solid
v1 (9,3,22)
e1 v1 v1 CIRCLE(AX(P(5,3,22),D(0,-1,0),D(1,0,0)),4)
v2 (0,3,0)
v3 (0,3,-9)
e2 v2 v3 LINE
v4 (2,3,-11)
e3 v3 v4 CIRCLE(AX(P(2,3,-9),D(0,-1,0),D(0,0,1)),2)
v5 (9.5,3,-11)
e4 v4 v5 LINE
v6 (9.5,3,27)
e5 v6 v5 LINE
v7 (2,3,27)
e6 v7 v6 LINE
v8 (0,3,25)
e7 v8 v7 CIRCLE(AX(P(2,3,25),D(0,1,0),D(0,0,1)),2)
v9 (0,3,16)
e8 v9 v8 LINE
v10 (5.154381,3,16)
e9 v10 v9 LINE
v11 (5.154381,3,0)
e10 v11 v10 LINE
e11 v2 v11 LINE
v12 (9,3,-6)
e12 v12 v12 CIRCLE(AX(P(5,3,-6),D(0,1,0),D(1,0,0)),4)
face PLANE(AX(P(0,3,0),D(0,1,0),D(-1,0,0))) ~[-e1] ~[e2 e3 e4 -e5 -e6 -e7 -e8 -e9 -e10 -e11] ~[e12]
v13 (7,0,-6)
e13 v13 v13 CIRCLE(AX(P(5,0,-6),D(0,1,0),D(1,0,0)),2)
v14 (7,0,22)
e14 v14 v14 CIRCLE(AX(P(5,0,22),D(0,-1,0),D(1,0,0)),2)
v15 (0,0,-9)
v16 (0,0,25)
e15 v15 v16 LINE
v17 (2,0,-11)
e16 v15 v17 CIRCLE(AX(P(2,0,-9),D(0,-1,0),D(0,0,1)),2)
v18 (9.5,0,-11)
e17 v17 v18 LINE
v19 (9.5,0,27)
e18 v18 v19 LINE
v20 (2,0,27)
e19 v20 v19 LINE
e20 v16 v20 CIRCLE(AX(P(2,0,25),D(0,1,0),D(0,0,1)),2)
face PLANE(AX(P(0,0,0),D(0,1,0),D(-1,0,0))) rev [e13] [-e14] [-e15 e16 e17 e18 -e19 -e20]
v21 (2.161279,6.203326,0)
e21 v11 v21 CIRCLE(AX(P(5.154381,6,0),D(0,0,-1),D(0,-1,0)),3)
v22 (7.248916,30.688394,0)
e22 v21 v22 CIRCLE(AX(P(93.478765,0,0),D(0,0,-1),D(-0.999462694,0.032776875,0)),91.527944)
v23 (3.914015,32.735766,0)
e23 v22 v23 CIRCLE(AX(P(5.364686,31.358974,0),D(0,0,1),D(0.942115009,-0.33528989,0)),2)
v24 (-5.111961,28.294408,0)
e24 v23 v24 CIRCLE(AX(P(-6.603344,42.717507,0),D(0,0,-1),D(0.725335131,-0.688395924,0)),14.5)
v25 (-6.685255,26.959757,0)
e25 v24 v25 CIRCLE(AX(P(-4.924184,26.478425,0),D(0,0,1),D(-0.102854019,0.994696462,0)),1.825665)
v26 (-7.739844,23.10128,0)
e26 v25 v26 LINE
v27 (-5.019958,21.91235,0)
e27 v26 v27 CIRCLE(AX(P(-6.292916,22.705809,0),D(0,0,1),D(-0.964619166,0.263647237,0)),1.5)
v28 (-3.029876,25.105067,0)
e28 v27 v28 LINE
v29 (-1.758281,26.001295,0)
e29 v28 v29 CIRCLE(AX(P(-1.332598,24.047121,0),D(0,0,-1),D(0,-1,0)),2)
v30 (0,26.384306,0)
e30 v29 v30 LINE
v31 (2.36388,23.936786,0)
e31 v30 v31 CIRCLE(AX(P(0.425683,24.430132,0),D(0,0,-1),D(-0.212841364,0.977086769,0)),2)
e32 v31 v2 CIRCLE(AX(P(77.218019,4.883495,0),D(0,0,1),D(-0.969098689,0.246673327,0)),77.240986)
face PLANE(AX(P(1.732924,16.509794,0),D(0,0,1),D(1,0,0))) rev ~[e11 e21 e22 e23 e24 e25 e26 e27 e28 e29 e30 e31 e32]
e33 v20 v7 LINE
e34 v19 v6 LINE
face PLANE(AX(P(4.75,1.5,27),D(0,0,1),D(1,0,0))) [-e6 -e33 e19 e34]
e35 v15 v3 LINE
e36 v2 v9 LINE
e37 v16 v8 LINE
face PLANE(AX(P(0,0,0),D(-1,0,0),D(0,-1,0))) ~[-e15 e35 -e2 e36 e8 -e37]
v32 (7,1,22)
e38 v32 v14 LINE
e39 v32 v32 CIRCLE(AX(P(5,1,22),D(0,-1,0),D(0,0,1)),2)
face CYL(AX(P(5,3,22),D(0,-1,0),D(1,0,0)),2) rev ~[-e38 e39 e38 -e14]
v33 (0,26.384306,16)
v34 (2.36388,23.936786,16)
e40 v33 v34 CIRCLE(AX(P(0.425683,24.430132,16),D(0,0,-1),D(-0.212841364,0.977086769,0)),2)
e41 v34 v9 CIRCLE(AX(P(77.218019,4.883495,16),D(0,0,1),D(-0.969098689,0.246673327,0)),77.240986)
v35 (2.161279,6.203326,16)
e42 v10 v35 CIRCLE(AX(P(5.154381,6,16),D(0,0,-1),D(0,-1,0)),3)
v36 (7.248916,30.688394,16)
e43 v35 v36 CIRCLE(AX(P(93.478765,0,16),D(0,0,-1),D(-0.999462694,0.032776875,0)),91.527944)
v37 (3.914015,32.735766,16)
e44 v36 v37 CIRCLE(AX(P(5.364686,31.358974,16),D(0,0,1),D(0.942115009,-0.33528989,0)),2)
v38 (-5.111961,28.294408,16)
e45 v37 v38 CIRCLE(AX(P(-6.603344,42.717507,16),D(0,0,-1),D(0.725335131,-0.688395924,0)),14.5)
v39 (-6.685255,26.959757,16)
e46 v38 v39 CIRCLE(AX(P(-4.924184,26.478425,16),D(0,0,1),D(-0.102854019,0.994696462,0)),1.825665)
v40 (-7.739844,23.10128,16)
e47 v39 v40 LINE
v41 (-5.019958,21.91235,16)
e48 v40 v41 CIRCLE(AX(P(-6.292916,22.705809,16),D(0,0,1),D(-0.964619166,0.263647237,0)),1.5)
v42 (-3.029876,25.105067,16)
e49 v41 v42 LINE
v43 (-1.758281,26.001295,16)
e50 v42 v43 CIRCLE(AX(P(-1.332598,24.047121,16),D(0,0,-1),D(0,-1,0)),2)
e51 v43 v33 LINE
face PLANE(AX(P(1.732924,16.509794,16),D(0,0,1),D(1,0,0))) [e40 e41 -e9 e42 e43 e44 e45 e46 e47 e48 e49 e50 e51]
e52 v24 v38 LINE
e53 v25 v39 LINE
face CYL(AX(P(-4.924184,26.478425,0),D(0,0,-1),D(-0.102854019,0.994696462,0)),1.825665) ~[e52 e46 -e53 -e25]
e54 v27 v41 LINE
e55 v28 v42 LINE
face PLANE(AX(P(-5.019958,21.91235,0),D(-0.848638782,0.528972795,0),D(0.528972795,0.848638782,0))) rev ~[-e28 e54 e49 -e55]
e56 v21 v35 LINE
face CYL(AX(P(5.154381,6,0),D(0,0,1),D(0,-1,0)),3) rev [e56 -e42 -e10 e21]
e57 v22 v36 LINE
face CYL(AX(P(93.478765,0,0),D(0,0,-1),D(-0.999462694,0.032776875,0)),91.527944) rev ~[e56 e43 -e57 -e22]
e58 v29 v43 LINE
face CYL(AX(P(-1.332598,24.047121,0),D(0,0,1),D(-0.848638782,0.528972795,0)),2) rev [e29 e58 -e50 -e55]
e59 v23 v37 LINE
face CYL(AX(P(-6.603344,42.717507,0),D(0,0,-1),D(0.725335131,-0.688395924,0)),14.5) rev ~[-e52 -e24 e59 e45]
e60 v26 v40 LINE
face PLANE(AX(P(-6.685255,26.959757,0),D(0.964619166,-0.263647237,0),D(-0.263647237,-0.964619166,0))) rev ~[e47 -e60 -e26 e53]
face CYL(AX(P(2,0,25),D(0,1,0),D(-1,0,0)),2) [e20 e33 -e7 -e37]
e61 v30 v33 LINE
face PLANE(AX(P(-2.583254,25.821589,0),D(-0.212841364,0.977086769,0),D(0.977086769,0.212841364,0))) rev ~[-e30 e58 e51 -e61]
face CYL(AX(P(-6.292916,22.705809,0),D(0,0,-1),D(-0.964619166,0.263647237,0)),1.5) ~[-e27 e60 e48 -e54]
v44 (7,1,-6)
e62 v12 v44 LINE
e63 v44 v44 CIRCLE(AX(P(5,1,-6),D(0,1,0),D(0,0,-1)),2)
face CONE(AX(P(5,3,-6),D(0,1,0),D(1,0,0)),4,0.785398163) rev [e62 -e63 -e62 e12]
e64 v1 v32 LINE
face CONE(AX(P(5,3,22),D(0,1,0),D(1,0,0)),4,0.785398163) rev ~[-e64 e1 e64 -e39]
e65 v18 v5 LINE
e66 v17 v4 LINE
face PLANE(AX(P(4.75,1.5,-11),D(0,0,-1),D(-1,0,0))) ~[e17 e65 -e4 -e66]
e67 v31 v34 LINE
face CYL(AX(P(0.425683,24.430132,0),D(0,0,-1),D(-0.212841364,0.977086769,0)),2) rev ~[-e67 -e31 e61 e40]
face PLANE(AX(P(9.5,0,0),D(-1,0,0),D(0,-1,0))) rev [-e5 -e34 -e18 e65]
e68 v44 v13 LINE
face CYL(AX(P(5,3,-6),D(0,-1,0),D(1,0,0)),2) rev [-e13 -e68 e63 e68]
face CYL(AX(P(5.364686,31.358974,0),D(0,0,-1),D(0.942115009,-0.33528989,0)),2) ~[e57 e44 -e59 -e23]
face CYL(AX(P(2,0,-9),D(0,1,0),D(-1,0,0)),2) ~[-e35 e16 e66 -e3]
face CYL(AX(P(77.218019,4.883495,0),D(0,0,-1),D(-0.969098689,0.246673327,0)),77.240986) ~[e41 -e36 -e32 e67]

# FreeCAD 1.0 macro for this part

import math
import FreeCAD as App
import Part
import Sketcher
from FreeCAD import Vector
Q = App.Units.Quantity


def edges_at(feature, points):
    """Names of the edges that pass closest to the given points."""
    edges = feature.Shape.Edges
    near = lambda p: min(range(len(edges)), key=lambda i: edges[i].distToShape(Part.Vertex(*p))[0])
    return sorted({f"Edge{near(p) + 1}" for p in points})


def add_polygon(sketch, points):
    """Adds a closed chain of lines whose ends are joined by coincident constraints."""
    first, n = sketch.GeometryCount, len(points)
    for a, b in zip(points, points[1:] + points[:1]):
        sketch.addGeometry(Part.LineSegment(App.Vector(*a, 0), App.Vector(*b, 0)), False)
    for i in range(n):
        sketch.addConstraint(Sketcher.Constraint("Coincident", first + i, 2, first + (i + 1) % n, 1))

doc = App.newDocument("Part")
body = doc.addObject("PartDesign::Body", "Body")

sketch1 = doc.addObject("Sketcher::SketchObject", "Sketch")
body.addObject(sketch1)
sketch1.AttachmentSupport = (doc.XY_Plane, [""])
sketch1.MapMode = "FlatFace"
sketch1.addGeometry([
    Part.ArcOfCircle(Part.Circle(Vector(93.5, 0, 0), Vector(0, 0, 1), 91.5), math.radians(160.41), math.radians(178.12)),
    Part.ArcOfCircle(Part.Circle(Vector(5.4, 31.4, 0), Vector(0, 0, 1), 2), math.radians(-20), math.radians(136)),
    Part.ArcOfCircle(Part.Circle(Vector(-6.6, 42.7, 0), Vector(0, 0, 1), 14.5), math.radians(-84), math.radians(-44)),
    Part.ArcOfCircle(Part.Circle(Vector(-4.9, 26.5, 0), Vector(0, 0, 1), 1.8), math.radians(96), math.radians(165)),
    Part.LineSegment(Vector(-6.7, 27, 0), Vector(-7.7, 23.1, 0)),
    Part.ArcOfCircle(Part.Circle(Vector(-6.3, 22.7, 0), Vector(0, 0, 1), 1.5), math.radians(165), math.radians(328)),
    Part.LineSegment(Vector(-5, 21.9, 0), Vector(-2.6, 25.8, 0)),
    Part.LineSegment(Vector(-2.6, 25.8, 0), Vector(0, 26.4, 0)),
    Part.ArcOfCircle(Part.Circle(Vector(0.4, 24.4, 0), Vector(0, 0, 1), 2), math.radians(-14), math.radians(102)),
    Part.ArcOfCircle(Part.Circle(Vector(77.2, 4.9, 0), Vector(0, 0, 1), 77.2), math.radians(165.72), math.radians(181.4)),
    Part.LineSegment(Vector(0, 3, 0), Vector(0, 0, 0)),
    Part.LineSegment(Vector(0, 0, 0), Vector(9.5, 0, 0)),
    Part.LineSegment(Vector(9.5, 0, 0), Vector(9.5, 3, 0)),
    Part.LineSegment(Vector(9.5, 3, 0), Vector(2, 3, 0)),
], False)
sketch1.addConstraint([
    Sketcher.Constraint("Tangent", 0, 1, 1, 1),
    Sketcher.Constraint("Tangent", 1, 2, 2, 2),
    Sketcher.Constraint("Tangent", 2, 1, 3, 1),
    Sketcher.Constraint("Tangent", 3, 2, 4, 1),
    Sketcher.Constraint("Tangent", 4, 2, 5, 1),
    Sketcher.Constraint("Tangent", 5, 2, 6, 1),
    Sketcher.Constraint("Coincident", 6, 2, 7, 1),
    Sketcher.Constraint("Tangent", 7, 2, 8, 2),
    Sketcher.Constraint("Tangent", 8, 1, 9, 1),
    Sketcher.Constraint("Coincident", 9, 2, 10, 1),
    Sketcher.Constraint("Coincident", 10, 2, 11, 1),
    Sketcher.Constraint("Coincident", 11, 2, 12, 1),
    Sketcher.Constraint("Coincident", 12, 2, 13, 1),
    Sketcher.Constraint("Coincident", 13, 2, 0, 2),
    Sketcher.Constraint("Vertical", 10),
    Sketcher.Constraint("Horizontal", 11),
    Sketcher.Constraint("Vertical", 12),
    Sketcher.Constraint("Horizontal", 13),
    Sketcher.Constraint("Coincident", 10, 2, -1, 1),
    Sketcher.Constraint("Equal", 1, 8),
    Sketcher.Constraint("PointOnObject", 0, 3, -1),
    Sketcher.Constraint("PointOnObject", 7, 2, -2),
    Sketcher.Constraint("Horizontal", 9, 2, 12, 2),
    Sketcher.Constraint("Radius", 1, Q("2 mm")),
    Sketcher.Constraint("Radius", 2, Q("14.5 mm")),
    Sketcher.Constraint("Radius", 5, Q("1.5 mm")),
    Sketcher.Constraint("DistanceY", 10, 2, 10, 1, Q("3 mm")),
    Sketcher.Constraint("Distance", 4, Q("4 mm")),
    Sketcher.Constraint("DistanceX", 11, 1, 11, 2, Q("9.5 mm")),
    Sketcher.Constraint("DistanceX", 13, 2, 13, 1, Q("7.5 mm")),
    Sketcher.Constraint("Radius", 0, Q("91.527944 mm")),
    Sketcher.Constraint("Radius", 3, Q("1.825665 mm")),
    Sketcher.Constraint("Radius", 9, Q("77.240986 mm")),
    Sketcher.Constraint("DistanceX", 3, 2, 6, 2, Q("4.102001 mm")),
    Sketcher.Constraint("DistanceX", 5, 3, 1, 3, Q("11.657601 mm")),
    Sketcher.Constraint("DistanceX", 5, 3, 8, 3, Q("6.718598 mm")),
    Sketcher.Constraint("DistanceX", 3, 3, 0, 1, Q("12.173099 mm")),
    Sketcher.Constraint("DistanceX", 1, 2, 0, 1, Q("3.3349 mm")),
    Sketcher.Constraint("Distance", 6, Q("4.606481 mm")),
    Sketcher.Constraint("DistanceY", -1, 1, 5, 3, Q("22.705809 mm")),
])
pad1 = doc.addObject("PartDesign::Pad", "Pad")
body.addObject(pad1)
pad1.Profile = sketch1
pad1.Length = 16

sketch2 = doc.addObject("Sketcher::SketchObject", "Sketch001")
body.addObject(sketch2)
sketch2.AttachmentSupport = (doc.XY_Plane, [""])
sketch2.MapMode = "FlatFace"
sketch2.AttachmentOffset = App.Placement(Vector(0, 0, 16), App.Rotation())
add_polygon(sketch2, [(0, 3), (0, 0), (9.5, 0), (9.5, 3)])
sketch2.addConstraint([
    Sketcher.Constraint("Vertical", 0),
    Sketcher.Constraint("Horizontal", 1),
    Sketcher.Constraint("Vertical", 2),
    Sketcher.Constraint("Horizontal", 3),
    Sketcher.Constraint("Coincident", 0, 2, -1, 1),
    Sketcher.Constraint("DistanceY", 0, 2, 0, 1, Q("3 mm")),
    Sketcher.Constraint("DistanceX", 1, 1, 1, 2, Q("9.5 mm")),
])
pad2 = doc.addObject("PartDesign::Pad", "Pad001")
body.addObject(pad2)
pad2.Profile = sketch2
pad2.Length = 11

sketch3 = doc.addObject("Sketcher::SketchObject", "Sketch002")
body.addObject(sketch3)
sketch3.AttachmentSupport = (doc.XZ_Plane, [""])
sketch3.MapMode = "FlatFace"
sketch3.AttachmentOffset = App.Placement(Vector(0, 0, -3), App.Rotation())
sketch3.addGeometry(Part.Circle(Vector(5, 22, 0), Vector(0, 0, 1), 2), False)
sketch3.addConstraint([
    Sketcher.Constraint("Diameter", 0, Q("4 mm")),
    Sketcher.Constraint("DistanceX", -1, 1, 0, 3, Q("5 mm")),
    Sketcher.Constraint("DistanceY", -1, 1, 0, 3, Q("22 mm")),
])
doc.recompute()
hole = doc.addObject("PartDesign::Hole", "Hole")
body.addObject(hole)
hole.Profile = sketch3
hole.ThreadType = "None"
hole.Diameter = 4
hole.DepthType = "ThroughAll"
hole.HoleCutType = "Countersink"
hole.HoleCutDiameter = 8
hole.HoleCutCountersinkAngle = 90
hole.Reversed = True
body2 = doc.addObject("PartDesign::Body", "Body001")
doc.recompute()

body2.BaseFeature = body
doc.recompute()

mirroring = doc.addObject("Part::Mirroring", "Mirroring")
mirroring.Source = body
mirroring.Base = Vector(0, 0, 8)
mirroring.Normal = Vector(0, 0, 1)
body3 = doc.addObject("PartDesign::Body", "Body002")
body3.BaseFeature = mirroring
boolean = doc.addObject("PartDesign::Boolean", "Boolean")
body2.addObject(boolean)
boolean.Type = "Fuse"
boolean.addObjects([body3])
doc.recompute()

fillet = doc.addObject("PartDesign::Fillet", "Fillet")
body2.addObject(fillet)
fillet.Base = (boolean, edges_at(boolean, [(0, 1.5, 27), (0, 1.5, -11)]))
fillet.Radius = 2
doc.recompute()

fillet2 = doc.addObject("PartDesign::Fillet", "Fillet001")
body2.addObject(fillet2)
fillet2.Base = (fillet, edges_at(fillet, [(2, 3, 8)]))
fillet2.Radius = 3
doc.recompute()

fillet3 = doc.addObject("PartDesign::Fillet", "Fillet002")
body2.addObject(fillet3)
fillet3.Base = (fillet2, edges_at(fillet2, [(-2.583, 25.822, 8)]))
fillet3.Radius = 2
mirroring.Visibility = False

doc.recompute()
